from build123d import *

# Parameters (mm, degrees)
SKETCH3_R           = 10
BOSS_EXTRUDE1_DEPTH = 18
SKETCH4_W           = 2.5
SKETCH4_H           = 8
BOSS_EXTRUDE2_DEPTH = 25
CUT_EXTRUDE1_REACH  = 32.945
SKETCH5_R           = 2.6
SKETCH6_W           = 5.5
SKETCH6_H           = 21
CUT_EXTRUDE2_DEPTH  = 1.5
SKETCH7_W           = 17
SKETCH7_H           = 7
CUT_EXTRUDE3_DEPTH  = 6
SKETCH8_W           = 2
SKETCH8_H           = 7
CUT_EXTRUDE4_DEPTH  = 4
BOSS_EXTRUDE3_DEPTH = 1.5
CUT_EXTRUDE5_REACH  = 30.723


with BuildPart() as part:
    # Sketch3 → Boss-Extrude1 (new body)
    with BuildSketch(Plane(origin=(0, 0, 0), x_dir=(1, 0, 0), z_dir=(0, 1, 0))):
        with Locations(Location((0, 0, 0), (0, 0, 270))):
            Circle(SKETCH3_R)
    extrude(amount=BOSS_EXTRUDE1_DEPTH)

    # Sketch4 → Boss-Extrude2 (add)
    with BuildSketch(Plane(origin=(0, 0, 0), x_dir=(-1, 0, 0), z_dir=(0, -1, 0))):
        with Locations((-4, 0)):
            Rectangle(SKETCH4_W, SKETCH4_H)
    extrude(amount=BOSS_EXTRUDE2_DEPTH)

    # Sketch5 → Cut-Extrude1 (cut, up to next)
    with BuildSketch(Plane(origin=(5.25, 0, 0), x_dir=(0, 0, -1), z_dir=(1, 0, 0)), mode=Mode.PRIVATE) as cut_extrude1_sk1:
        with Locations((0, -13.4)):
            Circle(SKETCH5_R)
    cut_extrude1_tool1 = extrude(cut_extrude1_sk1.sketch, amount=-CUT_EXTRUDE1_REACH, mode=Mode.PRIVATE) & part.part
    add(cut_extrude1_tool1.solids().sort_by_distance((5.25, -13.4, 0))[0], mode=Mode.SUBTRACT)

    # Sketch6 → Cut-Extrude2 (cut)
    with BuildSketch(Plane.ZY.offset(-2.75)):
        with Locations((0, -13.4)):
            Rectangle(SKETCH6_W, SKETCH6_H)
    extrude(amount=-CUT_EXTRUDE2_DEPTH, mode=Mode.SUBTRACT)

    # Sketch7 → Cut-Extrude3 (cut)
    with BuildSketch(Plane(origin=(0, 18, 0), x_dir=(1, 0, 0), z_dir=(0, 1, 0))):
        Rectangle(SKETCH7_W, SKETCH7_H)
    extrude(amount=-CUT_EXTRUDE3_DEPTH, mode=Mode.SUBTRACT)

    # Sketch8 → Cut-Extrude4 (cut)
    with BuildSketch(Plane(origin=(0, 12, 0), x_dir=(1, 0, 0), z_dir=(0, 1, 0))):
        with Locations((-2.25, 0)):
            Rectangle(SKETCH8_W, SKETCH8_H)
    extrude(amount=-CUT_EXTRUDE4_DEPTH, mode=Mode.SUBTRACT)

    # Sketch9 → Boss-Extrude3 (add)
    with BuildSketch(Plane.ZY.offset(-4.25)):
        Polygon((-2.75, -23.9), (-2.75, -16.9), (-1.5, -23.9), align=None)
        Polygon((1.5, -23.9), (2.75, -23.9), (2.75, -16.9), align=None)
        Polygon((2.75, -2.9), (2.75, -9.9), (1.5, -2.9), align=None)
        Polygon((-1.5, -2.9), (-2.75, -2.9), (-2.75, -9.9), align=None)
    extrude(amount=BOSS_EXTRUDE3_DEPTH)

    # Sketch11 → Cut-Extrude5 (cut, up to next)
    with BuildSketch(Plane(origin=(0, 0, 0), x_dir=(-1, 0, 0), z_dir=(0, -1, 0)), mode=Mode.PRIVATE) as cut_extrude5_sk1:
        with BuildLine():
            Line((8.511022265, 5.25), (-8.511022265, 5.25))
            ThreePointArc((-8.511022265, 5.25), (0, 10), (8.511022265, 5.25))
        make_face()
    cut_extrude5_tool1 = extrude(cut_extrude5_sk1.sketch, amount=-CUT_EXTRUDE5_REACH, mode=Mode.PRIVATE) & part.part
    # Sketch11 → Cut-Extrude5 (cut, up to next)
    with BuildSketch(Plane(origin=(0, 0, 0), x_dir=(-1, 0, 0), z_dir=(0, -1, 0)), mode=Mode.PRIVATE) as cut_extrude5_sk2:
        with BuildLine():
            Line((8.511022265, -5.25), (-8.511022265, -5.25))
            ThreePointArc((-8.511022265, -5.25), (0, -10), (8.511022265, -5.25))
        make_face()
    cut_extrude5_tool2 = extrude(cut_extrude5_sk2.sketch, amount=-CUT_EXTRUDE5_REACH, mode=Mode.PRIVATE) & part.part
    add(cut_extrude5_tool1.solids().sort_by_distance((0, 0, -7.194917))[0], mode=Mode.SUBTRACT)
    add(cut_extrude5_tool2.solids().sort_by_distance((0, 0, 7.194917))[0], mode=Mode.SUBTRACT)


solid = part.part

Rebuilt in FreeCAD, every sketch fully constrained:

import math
import FreeCAD as App
import Part
import Sketcher
from FreeCAD import Vector
Q = App.Units.Quantity

doc = App.newDocument("Part")
body = doc.addObject("PartDesign::Body", "Body")

# Sketch on XZ plane
sketch1 = body.newObject("Sketcher::SketchObject", "Sketch")
sketch1.AttachmentSupport = (doc.getObject("XZ_Plane"), [""])
sketch1.MapMode = "FlatFace"
sketch1.addGeometry(Part.Circle(Vector(0, 0, 0), Vector(0, 0, 1), 10), False)
sketch1.addConstraint([
    Sketcher.Constraint("Coincident", 0, 3, -1, 1),
    Sketcher.Constraint("Diameter", 0, Q("20 mm")),
])
pad1 = body.newObject("PartDesign::Pad", "Pad")
pad1.Profile = sketch1
pad1.Length = 18
pad1.Reversed = True

# Sketch on XZ plane
sketch2 = body.newObject("Sketcher::SketchObject", "Sketch001")
sketch2.AttachmentSupport = (doc.getObject("XZ_Plane"), [""])
sketch2.MapMode = "FlatFace"
sketch2.addGeometry([
    Part.LineSegment(Vector(5.2, -4, 0), Vector(5.2, 4, 0)),
    Part.LineSegment(Vector(5.2, 4, 0), Vector(2.8, 4, 0)),
    Part.LineSegment(Vector(2.8, 4, 0), Vector(2.8, -4, 0)),
    Part.LineSegment(Vector(2.8, -4, 0), Vector(5.2, -4, 0)),
], False)
sketch2.addConstraint([
    Sketcher.Constraint("Coincident", 0, 2, 1, 1),
    Sketcher.Constraint("Coincident", 1, 2, 2, 1),
    Sketcher.Constraint("Coincident", 2, 2, 3, 1),
    Sketcher.Constraint("Coincident", 3, 2, 0, 1),
    Sketcher.Constraint("Vertical", 0),
    Sketcher.Constraint("Horizontal", 1),
    Sketcher.Constraint("Vertical", 2),
    Sketcher.Constraint("Horizontal", 3),
    Sketcher.Constraint("DistanceY", 0, 1, 0, 2, Q("8 mm")),
    Sketcher.Constraint("DistanceX", 1, 2, 1, 1, Q("2.5 mm")),
    Sketcher.Constraint("DistanceY", -1, 1, 0, 2, Q("4 mm")),
    Sketcher.Constraint("DistanceX", -1, 1, 0, 2, Q("5.25 mm")),
])
pad2 = body.newObject("PartDesign::Pad", "Pad001")
pad2.Profile = sketch2
pad2.Length = 25

# Sketch on YZ plane
sketch3 = body.newObject("Sketcher::SketchObject", "Sketch002")
sketch3.AttachmentSupport = (doc.getObject("YZ_Plane"), [""])
sketch3.MapMode = "FlatFace"
sketch3.AttachmentOffset = App.Placement(Vector(0, 0, 5.25), App.Rotation())
sketch3.addGeometry(Part.Circle(Vector(-13.4, 0, 0), Vector(0, 0, 1), 2.6), False)
sketch3.addConstraint([
    Sketcher.Constraint("PointOnObject", 0, 3, -1),
    Sketcher.Constraint("Diameter", 0, Q("5.2 mm")),
    Sketcher.Constraint("DistanceX", 0, 3, -1, 1, Q("13.4 mm")),
])
pocket1 = body.newObject("PartDesign::Pocket", "Pocket")
pocket1.Profile = sketch3
pocket1.Type = "UpToFirst"

# Sketch on YZ plane
sketch4 = body.newObject("Sketcher::SketchObject", "Sketch003")
sketch4.AttachmentSupport = (doc.getObject("YZ_Plane"), [""])
sketch4.MapMode = "FlatFace"
sketch4.AttachmentOffset = App.Placement(Vector(0, 0, 2.75), App.Rotation())
sketch4.addGeometry([
    Part.LineSegment(Vector(-3, -3, 0), Vector(-24, -3, 0)),
    Part.LineSegment(Vector(-24, -3, 0), Vector(-24, 3, 0)),
    Part.LineSegment(Vector(-24, 3, 0), Vector(-3, 3, 0)),
    Part.LineSegment(Vector(-3, 3, 0), Vector(-3, -3, 0)),
], False)
sketch4.addConstraint([
    Sketcher.Constraint("Coincident", 0, 2, 1, 1),
    Sketcher.Constraint("Coincident", 1, 2, 2, 1),
    Sketcher.Constraint("Coincident", 2, 2, 3, 1),
    Sketcher.Constraint("Coincident", 3, 2, 0, 1),
    Sketcher.Constraint("Horizontal", 0),
    Sketcher.Constraint("Vertical", 1),
    Sketcher.Constraint("Horizontal", 2),
    Sketcher.Constraint("Vertical", 3),
    Sketcher.Constraint("DistanceX", 0, 2, 0, 1, Q("21 mm")),
    Sketcher.Constraint("DistanceY", 1, 1, 1, 2, Q("5.5 mm")),
    Sketcher.Constraint("DistanceX", 0, 2, -1, 1, Q("23.9 mm")),
    Sketcher.Constraint("DistanceY", 0, 2, -1, 1, Q("2.75 mm")),
])
pocket2 = body.newObject("PartDesign::Pocket", "Pocket001")
pocket2.Profile = sketch4
pocket2.Length = 1.5
pocket2.Reversed = True

# Sketch on XZ plane
sketch5 = body.newObject("Sketcher::SketchObject", "Sketch004")
sketch5.AttachmentSupport = (doc.getObject("XZ_Plane"), [""])
sketch5.MapMode = "FlatFace"
sketch5.AttachmentOffset = App.Placement(Vector(0, 0, -18), App.Rotation())
sketch5.addGeometry([
    Part.LineSegment(Vector(-8, -4, 0), Vector(-8, 4, 0)),
    Part.LineSegment(Vector(-8, 4, 0), Vector(8, 4, 0)),
    Part.LineSegment(Vector(8, 4, 0), Vector(8, -4, 0)),
    Part.LineSegment(Vector(8, -4, 0), Vector(-8, -4, 0)),
], False)
sketch5.addConstraint([
    Sketcher.Constraint("Coincident", 0, 2, 1, 1),
    Sketcher.Constraint("Coincident", 1, 2, 2, 1),
    Sketcher.Constraint("Coincident", 2, 2, 3, 1),
    Sketcher.Constraint("Coincident", 3, 2, 0, 1),
    Sketcher.Constraint("Vertical", 0),
    Sketcher.Constraint("Horizontal", 1),
    Sketcher.Constraint("Vertical", 2),
    Sketcher.Constraint("Horizontal", 3),
    Sketcher.Constraint("Symmetric", 0, 2, 2, 2, -1, 1),
    Sketcher.Constraint("DistanceX", 1, 1, 1, 2, Q("17 mm")),
    Sketcher.Constraint("DistanceY", 0, 1, 0, 2, Q("7 mm")),
])
pocket3 = body.newObject("PartDesign::Pocket", "Pocket002")
pocket3.Profile = sketch5
pocket3.Length = 6
pocket3.Reversed = True

# Sketch on XZ plane
sketch6 = body.newObject("Sketcher::SketchObject", "Sketch005")
sketch6.AttachmentSupport = (doc.getObject("XZ_Plane"), [""])
sketch6.MapMode = "FlatFace"
sketch6.AttachmentOffset = App.Placement(Vector(0, 0, -12), App.Rotation())
sketch6.addGeometry([
    Part.LineSegment(Vector(-3.2, -3.5, 0), Vector(-3.2, 3.5, 0)),
    Part.LineSegment(Vector(-3.2, 3.5, 0), Vector(-1.2, 3.5, 0)),
    Part.LineSegment(Vector(-1.2, 3.5, 0), Vector(-1.2, -3.5, 0)),
    Part.LineSegment(Vector(-1.2, -3.5, 0), Vector(-3.2, -3.5, 0)),
], False)
sketch6.addConstraint([
    Sketcher.Constraint("Coincident", 0, 2, 1, 1),
    Sketcher.Constraint("Coincident", 1, 2, 2, 1),
    Sketcher.Constraint("Coincident", 2, 2, 3, 1),
    Sketcher.Constraint("Coincident", 3, 2, 0, 1),
    Sketcher.Constraint("Vertical", 0),
    Sketcher.Constraint("Horizontal", 1),
    Sketcher.Constraint("Vertical", 2),
    Sketcher.Constraint("Horizontal", 3),
    Sketcher.Constraint("DistanceX", 1, 1, 1, 2, Q("2 mm")),
    Sketcher.Constraint("DistanceY", 0, 1, 0, 2, Q("7 mm")),
    Sketcher.Constraint("DistanceY", -1, 1, 0, 2, Q("3.5 mm")),
    Sketcher.Constraint("DistanceX", 0, 2, -1, 1, Q("3.25 mm")),
])
pocket4 = body.newObject("PartDesign::Pocket", "Pocket003")
pocket4.Profile = sketch6
pocket4.Length = 4
pocket4.Reversed = True

# Sketch on YZ plane
sketch7 = body.newObject("Sketcher::SketchObject", "Sketch006")
sketch7.AttachmentSupport = (doc.getObject("YZ_Plane"), [""])
sketch7.MapMode = "FlatFace"
sketch7.AttachmentOffset = App.Placement(Vector(0, 0, 4.25), App.Rotation())
sketch7.addGeometry([
    Part.LineSegment(Vector(-16.9, -2.8, 0), Vector(-23.9, -2.8, 0)),  # 0
    Part.LineSegment(Vector(-23.9, -2.8, 0), Vector(-23.9, -1.5, 0)),  # 1
    Part.LineSegment(Vector(-23.9, -1.5, 0), Vector(-16.9, -2.8, 0)),  # 2
    Part.LineSegment(Vector(-23.9, 1.5, 0), Vector(-23.9, 2.8, 0)),  # 3
    Part.LineSegment(Vector(-23.9, 2.8, 0), Vector(-16.9, 2.8, 0)),  # 4
    Part.LineSegment(Vector(-16.9, 2.8, 0), Vector(-23.9, 1.5, 0)),  # 5
    Part.LineSegment(Vector(-9.9, 2.8, 0), Vector(-2.9, 2.8, 0)),  # 6
    Part.LineSegment(Vector(-2.9, 2.8, 0), Vector(-2.9, 1.5, 0)),  # 7
    Part.LineSegment(Vector(-2.9, 1.5, 0), Vector(-9.9, 2.8, 0)),  # 8
    Part.LineSegment(Vector(-2.9, -1.5, 0), Vector(-2.9, -2.8, 0)),  # 9
    Part.LineSegment(Vector(-2.9, -2.8, 0), Vector(-9.9, -2.8, 0)),  # 10
    Part.LineSegment(Vector(-9.9, -2.8, 0), Vector(-2.9, -1.5, 0)),  # 11
], False)
sketch7.addConstraint([
    Sketcher.Constraint("Coincident", 0, 2, 1, 1),
    Sketcher.Constraint("Coincident", 1, 2, 2, 1),
    Sketcher.Constraint("Coincident", 2, 2, 0, 1),
    Sketcher.Constraint("Coincident", 3, 2, 4, 1),
    Sketcher.Constraint("Coincident", 4, 2, 5, 1),
    Sketcher.Constraint("Coincident", 5, 2, 3, 1),
    Sketcher.Constraint("Coincident", 6, 2, 7, 1),
    Sketcher.Constraint("Coincident", 7, 2, 8, 1),
    Sketcher.Constraint("Coincident", 8, 2, 6, 1),
    Sketcher.Constraint("Coincident", 9, 2, 10, 1),
    Sketcher.Constraint("Coincident", 10, 2, 11, 1),
    Sketcher.Constraint("Coincident", 11, 2, 9, 1),
    Sketcher.Constraint("Horizontal", 0),
    Sketcher.Constraint("Vertical", 1),
    Sketcher.Constraint("Vertical", 3),
    Sketcher.Constraint("Horizontal", 4),
    Sketcher.Constraint("Horizontal", 6),
    Sketcher.Constraint("Vertical", 7),
    Sketcher.Constraint("Vertical", 9),
    Sketcher.Constraint("Horizontal", 10),
    Sketcher.Constraint("Symmetric", 0, 2, 3, 2, -1),
    Sketcher.Constraint("Symmetric", 6, 2, 9, 2, -1),
    Sketcher.Constraint("Parallel", 2, 8),
    Sketcher.Constraint("Parallel", 5, 11),
    Sketcher.Constraint("Horizontal", 4, 2, 6, 2),
    Sketcher.Constraint("Horizontal", 5, 2, 7, 2),
    Sketcher.Constraint("Horizontal", 1, 2, 11, 2),
    Sketcher.Constraint("Vertical", 2, 2, 4, 2),
    Sketcher.Constraint("Vertical", 8, 2, 10, 2),
    Sketcher.Constraint("DistanceX", 0, 2, 0, 1, Q("7 mm")),
    Sketcher.Constraint("DistanceY", 1, 2, 5, 2, Q("3 mm")),
    Sketcher.Constraint("DistanceX", 4, 2, 6, 2, Q("14 mm")),
    Sketcher.Constraint("DistanceY", 1, 1, 1, 2, Q("1.25 mm")),
    Sketcher.Constraint("DistanceX", 0, 2, -1, 1, Q("23.9 mm")),
])
pad3 = body.newObject("PartDesign::Pad", "Pad002")
pad3.Profile = sketch7
pad3.Length = 1.5
pad3.Reversed = True

# Sketch on XZ plane
sketch8 = body.newObject("Sketcher::SketchObject", "Sketch007")
sketch8.AttachmentSupport = (doc.getObject("XZ_Plane"), [""])
sketch8.MapMode = "FlatFace"
sketch8.addGeometry([
    Part.LineSegment(Vector(9, -5, 0), Vector(-9, -5, 0)),
    Part.ArcOfCircle(Part.Circle(Vector(0, 0, 0), Vector(0, 0, 1), 10), math.radians(-148), math.radians(-32)),
], False)
sketch8.addConstraint([
    Sketcher.Constraint("Coincident", 0, 1, 1, 2),
    Sketcher.Constraint("Coincident", 1, 1, 0, 2),
    Sketcher.Constraint("Horizontal", 0),
    Sketcher.Constraint("Coincident", 1, 3, -1, 1),
    Sketcher.Constraint("Radius", 1, Q("10 mm")),
    Sketcher.Constraint("DistanceY", 0, 1, -1, 1, Q("5.25 mm")),
])
pocket5 = body.newObject("PartDesign::Pocket", "Pocket004")
pocket5.Profile = sketch8
pocket5.Type = "UpToFirst"

# Sketch on XZ plane
sketch9 = body.newObject("Sketcher::SketchObject", "Sketch008")
sketch9.AttachmentSupport = (doc.getObject("XZ_Plane"), [""])
sketch9.MapMode = "FlatFace"
sketch9.addGeometry([
    Part.LineSegment(Vector(-9, 5, 0), Vector(9, 5, 0)),
    Part.ArcOfCircle(Part.Circle(Vector(0, 0, 0), Vector(0, 0, 1), 10), math.radians(32), math.radians(148)),
], False)
sketch9.addConstraint([
    Sketcher.Constraint("Coincident", 0, 1, 1, 2),
    Sketcher.Constraint("Coincident", 1, 1, 0, 2),
    Sketcher.Constraint("Horizontal", 0),
    Sketcher.Constraint("Coincident", 1, 3, -1, 1),
    Sketcher.Constraint("Radius", 1, Q("10 mm")),
    Sketcher.Constraint("DistanceY", -1, 1, 0, 1, Q("5.25 mm")),
])
pocket6 = body.newObject("PartDesign::Pocket", "Pocket005")
pocket6.Profile = sketch9
pocket6.Type = "UpToFirst"

doc.recompute()
